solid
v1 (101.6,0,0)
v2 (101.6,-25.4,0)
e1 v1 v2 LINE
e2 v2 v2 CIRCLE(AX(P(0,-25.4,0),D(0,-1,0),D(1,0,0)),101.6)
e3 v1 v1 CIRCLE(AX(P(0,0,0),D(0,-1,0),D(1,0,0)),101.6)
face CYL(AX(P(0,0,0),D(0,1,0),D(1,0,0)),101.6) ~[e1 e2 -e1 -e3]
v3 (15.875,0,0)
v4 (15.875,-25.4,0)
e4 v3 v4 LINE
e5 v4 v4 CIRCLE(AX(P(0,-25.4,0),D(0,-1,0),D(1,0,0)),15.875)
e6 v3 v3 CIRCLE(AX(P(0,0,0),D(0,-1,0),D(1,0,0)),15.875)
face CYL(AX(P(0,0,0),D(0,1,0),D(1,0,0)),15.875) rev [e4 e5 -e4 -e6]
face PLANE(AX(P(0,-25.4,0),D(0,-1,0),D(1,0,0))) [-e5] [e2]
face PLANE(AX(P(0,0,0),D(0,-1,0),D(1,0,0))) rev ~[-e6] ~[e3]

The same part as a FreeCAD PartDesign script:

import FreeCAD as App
import Part
import Sketcher

V = App.Vector
Q = App.Units.Quantity

doc = App.newDocument("Part")
body = doc.addObject("PartDesign::Body", "Body")

# Sketch on XZ plane
sketch1 = body.newObject("Sketcher::SketchObject", "Sketch")
sketch1.AttachmentSupport = (doc.getObject("XZ_Plane"), [""])
sketch1.MapMode = "FlatFace"
sketch1.addGeometry([
    Part.Circle(V(0, 0, 0), V(0, 0, 1), 102),
    Part.Circle(V(0, 0, 0), V(0, 0, 1), 16),
], False)
sketch1.addConstraint([
    Sketcher.Constraint("Coincident", 0, 3, -1, 1),
    Sketcher.Constraint("Coincident", 1, 3, -1, 1),
    Sketcher.Constraint("Diameter", 0, Q("8 in")),
    Sketcher.Constraint("Diameter", 1, Q("1.25 in")),
])
pad1 = body.newObject("PartDesign::Pad", "Pad")
pad1.Profile = sketch1
pad1.Length = Q("1 in")

doc.recompute()
